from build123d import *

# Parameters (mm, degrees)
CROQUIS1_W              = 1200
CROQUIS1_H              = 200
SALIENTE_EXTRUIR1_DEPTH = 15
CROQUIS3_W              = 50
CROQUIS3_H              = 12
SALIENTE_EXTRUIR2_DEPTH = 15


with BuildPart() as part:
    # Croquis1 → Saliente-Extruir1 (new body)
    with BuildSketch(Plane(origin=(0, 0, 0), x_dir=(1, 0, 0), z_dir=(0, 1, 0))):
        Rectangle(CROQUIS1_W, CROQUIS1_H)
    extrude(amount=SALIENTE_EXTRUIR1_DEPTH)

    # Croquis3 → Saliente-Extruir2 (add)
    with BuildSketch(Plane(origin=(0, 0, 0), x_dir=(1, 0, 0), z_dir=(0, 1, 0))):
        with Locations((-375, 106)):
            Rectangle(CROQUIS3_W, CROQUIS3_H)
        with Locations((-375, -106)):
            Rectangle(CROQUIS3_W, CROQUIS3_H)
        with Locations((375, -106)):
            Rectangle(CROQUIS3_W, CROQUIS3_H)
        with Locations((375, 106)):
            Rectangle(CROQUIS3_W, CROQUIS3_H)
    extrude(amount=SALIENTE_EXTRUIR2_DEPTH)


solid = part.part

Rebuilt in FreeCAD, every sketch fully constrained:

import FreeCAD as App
import Part
import Sketcher

V = App.Vector

doc = App.newDocument("Part")
body = doc.addObject("PartDesign::Body", "Body")

sketch1 = body.newObject("Sketcher::SketchObject", "Sketch")
sketch1.AttachmentSupport = (doc.getObject("XZ_Plane"), [""])
sketch1.MapMode = "FlatFace"
sketch1.addGeometry([
    Part.LineSegment(V(-600, -100, 0), V(-600, 100, 0)),
    Part.LineSegment(V(-600, 100, 0), V(600, 100, 0)),
    Part.LineSegment(V(600, 100, 0), V(600, -100, 0)),
    Part.LineSegment(V(600, -100, 0), V(-600, -100, 0)),
], False)
sketch1.addConstraint([
    Sketcher.Constraint("Coincident", 0, 2, 1, 1),
    Sketcher.Constraint("Coincident", 1, 2, 2, 1),
    Sketcher.Constraint("Coincident", 2, 2, 3, 1),
    Sketcher.Constraint("Coincident", 3, 2, 0, 1),
    Sketcher.Constraint("Vertical", 0),
    Sketcher.Constraint("Horizontal", 1),
    Sketcher.Constraint("Vertical", 2),
    Sketcher.Constraint("Horizontal", 3),
    Sketcher.Constraint("Symmetric", 0, 2, 2, 2, -1, 1),
    Sketcher.Constraint("DistanceX", 1, 1, 1, 2, 1200.0),
    Sketcher.Constraint("DistanceY", 0, 1, 0, 2, 200.0),
])
pad1 = body.newObject("PartDesign::Pad", "Pad")
pad1.Profile = sketch1
pad1.Length = 15
pad1.Reversed = True

sketch2 = body.newObject("Sketcher::SketchObject", "Sketch001")
sketch2.AttachmentSupport = (doc.getObject("XZ_Plane"), [""])
sketch2.MapMode = "FlatFace"
sketch2.addGeometry([
    Part.LineSegment(V(-400, -112, 0), V(-400, -100, 0)),
    Part.LineSegment(V(-400, -100, 0), V(-350, -100, 0)),
    Part.LineSegment(V(-350, -100, 0), V(-350, -112, 0)),
    Part.LineSegment(V(-350, -112, 0), V(-400, -112, 0)),
    Part.LineSegment(V(-400, 100, 0), V(-400, 112, 0)),
    Part.LineSegment(V(-400, 112, 0), V(-350, 112, 0)),
    Part.LineSegment(V(-350, 112, 0), V(-350, 100, 0)),
    Part.LineSegment(V(-350, 100, 0), V(-400, 100, 0)),
    Part.LineSegment(V(350, 100, 0), V(350, 112, 0)),
    Part.LineSegment(V(350, 112, 0), V(400, 112, 0)),
    Part.LineSegment(V(400, 112, 0), V(400, 100, 0)),
    Part.LineSegment(V(400, 100, 0), V(350, 100, 0)),
    Part.LineSegment(V(350, -112, 0), V(350, -100, 0)),
    Part.LineSegment(V(350, -100, 0), V(400, -100, 0)),
    Part.LineSegment(V(400, -100, 0), V(400, -112, 0)),
    Part.LineSegment(V(400, -112, 0), V(350, -112, 0)),
], False)
sketch2.addConstraint([
    Sketcher.Constraint("Coincident", 0, 2, 1, 1),
    Sketcher.Constraint("Coincident", 1, 2, 2, 1),
    Sketcher.Constraint("Coincident", 2, 2, 3, 1),
    Sketcher.Constraint("Coincident", 3, 2, 0, 1),
    Sketcher.Constraint("Coincident", 4, 2, 5, 1),
    Sketcher.Constraint("Coincident", 5, 2, 6, 1),
    Sketcher.Constraint("Coincident", 6, 2, 7, 1),
    Sketcher.Constraint("Coincident", 7, 2, 4, 1),
    Sketcher.Constraint("Coincident", 8, 2, 9, 1),
    Sketcher.Constraint("Coincident", 9, 2, 10, 1),
    Sketcher.Constraint("Coincident", 10, 2, 11, 1),
    Sketcher.Constraint("Coincident", 11, 2, 8, 1),
    Sketcher.Constraint("Coincident", 12, 2, 13, 1),
    Sketcher.Constraint("Coincident", 13, 2, 14, 1),
    Sketcher.Constraint("Coincident", 14, 2, 15, 1),
    Sketcher.Constraint("Coincident", 15, 2, 12, 1),
    Sketcher.Constraint("Vertical", 0),
    Sketcher.Constraint("Horizontal", 1),
    Sketcher.Constraint("Vertical", 2),
    Sketcher.Constraint("Horizontal", 3),
    Sketcher.Constraint("Vertical", 4),
    Sketcher.Constraint("Horizontal", 5),
    Sketcher.Constraint("Vertical", 6),
    Sketcher.Constraint("Horizontal", 7),
    Sketcher.Constraint("Vertical", 8),
    Sketcher.Constraint("Horizontal", 9),
    Sketcher.Constraint("Vertical", 10),
    Sketcher.Constraint("Horizontal", 11),
    Sketcher.Constraint("Vertical", 12),
    Sketcher.Constraint("Horizontal", 13),
    Sketcher.Constraint("Vertical", 14),
    Sketcher.Constraint("Horizontal", 15),
    Sketcher.Constraint("Symmetric", 2, 2, 8, 2, -1, 1),
    Sketcher.Constraint("Symmetric", 0, 2, 10, 2, -1, 1),
    Sketcher.Constraint("Symmetric", 6, 2, 12, 2, -1, 1),
    Sketcher.Constraint("Symmetric", 4, 2, 14, 2, -1, 1),
    Sketcher.Constraint("Symmetric", 5, 2, 8, 2, -2),
    Sketcher.Constraint("Symmetric", 7, 2, 10, 2, -2),
    Sketcher.Constraint("DistanceX", 1, 1, 1, 2, 50.0),
    Sketcher.Constraint("DistanceY", 0, 1, 0, 2, 12.0),
    Sketcher.Constraint("DistanceX", 0, 2, -1, 1, 400.0),
    Sketcher.Constraint("DistanceY", 0, 2, -1, 1, 100.0),
])
pad2 = body.newObject("PartDesign::Pad", "Pad001")
pad2.Profile = sketch2
pad2.Length = 15
pad2.Reversed = True

doc.recompute()
